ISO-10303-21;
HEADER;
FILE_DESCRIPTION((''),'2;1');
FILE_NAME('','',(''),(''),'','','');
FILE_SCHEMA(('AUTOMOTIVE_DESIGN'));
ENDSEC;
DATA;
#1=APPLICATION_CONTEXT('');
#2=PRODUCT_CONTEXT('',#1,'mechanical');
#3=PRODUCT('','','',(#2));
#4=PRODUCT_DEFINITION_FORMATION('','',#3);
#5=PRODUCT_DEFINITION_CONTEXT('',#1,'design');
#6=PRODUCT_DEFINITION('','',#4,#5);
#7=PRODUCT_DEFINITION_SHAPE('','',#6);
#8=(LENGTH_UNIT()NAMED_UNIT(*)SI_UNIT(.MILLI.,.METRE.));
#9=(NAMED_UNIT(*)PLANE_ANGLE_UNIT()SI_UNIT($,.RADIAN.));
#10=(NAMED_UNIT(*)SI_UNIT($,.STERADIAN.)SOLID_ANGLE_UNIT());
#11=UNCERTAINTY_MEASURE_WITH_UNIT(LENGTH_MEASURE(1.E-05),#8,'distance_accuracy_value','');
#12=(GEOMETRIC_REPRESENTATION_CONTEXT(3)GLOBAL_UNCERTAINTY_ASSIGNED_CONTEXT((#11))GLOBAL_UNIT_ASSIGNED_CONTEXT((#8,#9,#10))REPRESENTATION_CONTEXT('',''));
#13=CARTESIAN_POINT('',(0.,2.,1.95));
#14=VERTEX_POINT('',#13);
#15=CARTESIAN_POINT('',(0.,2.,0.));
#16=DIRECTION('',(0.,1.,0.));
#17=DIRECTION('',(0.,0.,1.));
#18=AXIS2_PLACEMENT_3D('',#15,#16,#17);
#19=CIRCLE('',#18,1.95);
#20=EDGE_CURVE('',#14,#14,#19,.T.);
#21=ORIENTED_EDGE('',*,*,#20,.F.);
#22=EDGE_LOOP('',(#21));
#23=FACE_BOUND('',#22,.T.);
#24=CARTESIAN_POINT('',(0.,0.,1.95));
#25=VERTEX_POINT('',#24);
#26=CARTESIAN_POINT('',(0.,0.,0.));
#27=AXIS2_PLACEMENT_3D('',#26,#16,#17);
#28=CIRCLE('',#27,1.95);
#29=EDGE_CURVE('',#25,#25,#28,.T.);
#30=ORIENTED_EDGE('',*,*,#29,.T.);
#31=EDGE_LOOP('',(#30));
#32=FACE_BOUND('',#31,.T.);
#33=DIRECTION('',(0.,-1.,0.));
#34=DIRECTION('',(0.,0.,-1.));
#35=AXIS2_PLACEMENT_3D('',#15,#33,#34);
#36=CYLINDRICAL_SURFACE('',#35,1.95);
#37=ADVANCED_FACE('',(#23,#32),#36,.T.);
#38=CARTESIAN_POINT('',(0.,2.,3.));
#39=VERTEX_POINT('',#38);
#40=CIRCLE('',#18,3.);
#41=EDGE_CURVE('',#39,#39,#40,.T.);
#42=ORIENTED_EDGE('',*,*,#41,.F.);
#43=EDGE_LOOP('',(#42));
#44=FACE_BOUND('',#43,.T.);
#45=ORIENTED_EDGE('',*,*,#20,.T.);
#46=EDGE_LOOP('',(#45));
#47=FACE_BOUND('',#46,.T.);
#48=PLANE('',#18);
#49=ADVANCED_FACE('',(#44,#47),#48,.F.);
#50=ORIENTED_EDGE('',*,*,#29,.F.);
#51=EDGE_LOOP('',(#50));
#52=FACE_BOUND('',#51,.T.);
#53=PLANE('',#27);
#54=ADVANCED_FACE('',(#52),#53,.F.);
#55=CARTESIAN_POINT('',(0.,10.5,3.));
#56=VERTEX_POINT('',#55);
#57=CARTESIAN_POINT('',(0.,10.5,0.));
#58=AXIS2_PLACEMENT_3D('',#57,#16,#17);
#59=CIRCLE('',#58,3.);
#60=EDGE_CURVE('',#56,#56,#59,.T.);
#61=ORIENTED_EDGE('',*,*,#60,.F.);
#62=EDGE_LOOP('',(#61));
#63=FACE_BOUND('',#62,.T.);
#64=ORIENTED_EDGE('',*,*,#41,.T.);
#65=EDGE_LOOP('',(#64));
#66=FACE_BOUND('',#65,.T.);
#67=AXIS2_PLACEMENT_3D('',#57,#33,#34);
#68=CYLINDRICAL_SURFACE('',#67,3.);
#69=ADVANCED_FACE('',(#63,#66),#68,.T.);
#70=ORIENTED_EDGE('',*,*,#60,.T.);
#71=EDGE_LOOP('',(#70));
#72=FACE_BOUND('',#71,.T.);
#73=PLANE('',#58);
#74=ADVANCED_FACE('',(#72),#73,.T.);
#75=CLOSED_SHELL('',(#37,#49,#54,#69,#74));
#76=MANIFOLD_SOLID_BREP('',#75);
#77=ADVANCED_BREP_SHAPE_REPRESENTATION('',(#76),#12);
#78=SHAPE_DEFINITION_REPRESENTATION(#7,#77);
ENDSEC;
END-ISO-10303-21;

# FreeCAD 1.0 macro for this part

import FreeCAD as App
import Part
import Sketcher
Q = App.Units.Quantity

doc = App.newDocument("Part")
body = doc.addObject("PartDesign::Body", "Body")

# Sketch on XZ plane
sketch1 = doc.addObject("Sketcher::SketchObject", "Sketch")
body.addObject(sketch1)
sketch1.AttachmentSupport = (doc.XZ_Plane, [""])
sketch1.MapMode = "FlatFace"
sketch1.addGeometry(Part.Circle(App.Vector(0, 0, 0), App.Vector(0, 0, 1), 1.95), False)
sketch1.addConstraint([
    Sketcher.Constraint("Coincident", 0, 3, -1, 1),
    Sketcher.Constraint("Diameter", 0, Q("3.9 mm")),
])
pad1 = doc.addObject("PartDesign::Pad", "Pad")
body.addObject(pad1)
pad1.Profile = sketch1
pad1.Length = 2
pad1.Reversed = True

# Sketch on XZ plane
sketch2 = doc.addObject("Sketcher::SketchObject", "Sketch001")
body.addObject(sketch2)
sketch2.AttachmentSupport = (doc.XZ_Plane, [""])
sketch2.MapMode = "FlatFace"
sketch2.AttachmentOffset = App.Placement(App.Vector(0, 0, -2), App.Rotation())
sketch2.addGeometry(Part.Circle(App.Vector(0, 0, 0), App.Vector(0, 0, 1), 3), False)
sketch2.addConstraint([
    Sketcher.Constraint("Coincident", 0, 3, -1, 1),
    Sketcher.Constraint("Diameter", 0, Q("6 mm")),
])
pad2 = doc.addObject("PartDesign::Pad", "Pad001")
body.addObject(pad2)
pad2.Profile = sketch2
pad2.Length = 8.5
pad2.Reversed = True

doc.recompute()
